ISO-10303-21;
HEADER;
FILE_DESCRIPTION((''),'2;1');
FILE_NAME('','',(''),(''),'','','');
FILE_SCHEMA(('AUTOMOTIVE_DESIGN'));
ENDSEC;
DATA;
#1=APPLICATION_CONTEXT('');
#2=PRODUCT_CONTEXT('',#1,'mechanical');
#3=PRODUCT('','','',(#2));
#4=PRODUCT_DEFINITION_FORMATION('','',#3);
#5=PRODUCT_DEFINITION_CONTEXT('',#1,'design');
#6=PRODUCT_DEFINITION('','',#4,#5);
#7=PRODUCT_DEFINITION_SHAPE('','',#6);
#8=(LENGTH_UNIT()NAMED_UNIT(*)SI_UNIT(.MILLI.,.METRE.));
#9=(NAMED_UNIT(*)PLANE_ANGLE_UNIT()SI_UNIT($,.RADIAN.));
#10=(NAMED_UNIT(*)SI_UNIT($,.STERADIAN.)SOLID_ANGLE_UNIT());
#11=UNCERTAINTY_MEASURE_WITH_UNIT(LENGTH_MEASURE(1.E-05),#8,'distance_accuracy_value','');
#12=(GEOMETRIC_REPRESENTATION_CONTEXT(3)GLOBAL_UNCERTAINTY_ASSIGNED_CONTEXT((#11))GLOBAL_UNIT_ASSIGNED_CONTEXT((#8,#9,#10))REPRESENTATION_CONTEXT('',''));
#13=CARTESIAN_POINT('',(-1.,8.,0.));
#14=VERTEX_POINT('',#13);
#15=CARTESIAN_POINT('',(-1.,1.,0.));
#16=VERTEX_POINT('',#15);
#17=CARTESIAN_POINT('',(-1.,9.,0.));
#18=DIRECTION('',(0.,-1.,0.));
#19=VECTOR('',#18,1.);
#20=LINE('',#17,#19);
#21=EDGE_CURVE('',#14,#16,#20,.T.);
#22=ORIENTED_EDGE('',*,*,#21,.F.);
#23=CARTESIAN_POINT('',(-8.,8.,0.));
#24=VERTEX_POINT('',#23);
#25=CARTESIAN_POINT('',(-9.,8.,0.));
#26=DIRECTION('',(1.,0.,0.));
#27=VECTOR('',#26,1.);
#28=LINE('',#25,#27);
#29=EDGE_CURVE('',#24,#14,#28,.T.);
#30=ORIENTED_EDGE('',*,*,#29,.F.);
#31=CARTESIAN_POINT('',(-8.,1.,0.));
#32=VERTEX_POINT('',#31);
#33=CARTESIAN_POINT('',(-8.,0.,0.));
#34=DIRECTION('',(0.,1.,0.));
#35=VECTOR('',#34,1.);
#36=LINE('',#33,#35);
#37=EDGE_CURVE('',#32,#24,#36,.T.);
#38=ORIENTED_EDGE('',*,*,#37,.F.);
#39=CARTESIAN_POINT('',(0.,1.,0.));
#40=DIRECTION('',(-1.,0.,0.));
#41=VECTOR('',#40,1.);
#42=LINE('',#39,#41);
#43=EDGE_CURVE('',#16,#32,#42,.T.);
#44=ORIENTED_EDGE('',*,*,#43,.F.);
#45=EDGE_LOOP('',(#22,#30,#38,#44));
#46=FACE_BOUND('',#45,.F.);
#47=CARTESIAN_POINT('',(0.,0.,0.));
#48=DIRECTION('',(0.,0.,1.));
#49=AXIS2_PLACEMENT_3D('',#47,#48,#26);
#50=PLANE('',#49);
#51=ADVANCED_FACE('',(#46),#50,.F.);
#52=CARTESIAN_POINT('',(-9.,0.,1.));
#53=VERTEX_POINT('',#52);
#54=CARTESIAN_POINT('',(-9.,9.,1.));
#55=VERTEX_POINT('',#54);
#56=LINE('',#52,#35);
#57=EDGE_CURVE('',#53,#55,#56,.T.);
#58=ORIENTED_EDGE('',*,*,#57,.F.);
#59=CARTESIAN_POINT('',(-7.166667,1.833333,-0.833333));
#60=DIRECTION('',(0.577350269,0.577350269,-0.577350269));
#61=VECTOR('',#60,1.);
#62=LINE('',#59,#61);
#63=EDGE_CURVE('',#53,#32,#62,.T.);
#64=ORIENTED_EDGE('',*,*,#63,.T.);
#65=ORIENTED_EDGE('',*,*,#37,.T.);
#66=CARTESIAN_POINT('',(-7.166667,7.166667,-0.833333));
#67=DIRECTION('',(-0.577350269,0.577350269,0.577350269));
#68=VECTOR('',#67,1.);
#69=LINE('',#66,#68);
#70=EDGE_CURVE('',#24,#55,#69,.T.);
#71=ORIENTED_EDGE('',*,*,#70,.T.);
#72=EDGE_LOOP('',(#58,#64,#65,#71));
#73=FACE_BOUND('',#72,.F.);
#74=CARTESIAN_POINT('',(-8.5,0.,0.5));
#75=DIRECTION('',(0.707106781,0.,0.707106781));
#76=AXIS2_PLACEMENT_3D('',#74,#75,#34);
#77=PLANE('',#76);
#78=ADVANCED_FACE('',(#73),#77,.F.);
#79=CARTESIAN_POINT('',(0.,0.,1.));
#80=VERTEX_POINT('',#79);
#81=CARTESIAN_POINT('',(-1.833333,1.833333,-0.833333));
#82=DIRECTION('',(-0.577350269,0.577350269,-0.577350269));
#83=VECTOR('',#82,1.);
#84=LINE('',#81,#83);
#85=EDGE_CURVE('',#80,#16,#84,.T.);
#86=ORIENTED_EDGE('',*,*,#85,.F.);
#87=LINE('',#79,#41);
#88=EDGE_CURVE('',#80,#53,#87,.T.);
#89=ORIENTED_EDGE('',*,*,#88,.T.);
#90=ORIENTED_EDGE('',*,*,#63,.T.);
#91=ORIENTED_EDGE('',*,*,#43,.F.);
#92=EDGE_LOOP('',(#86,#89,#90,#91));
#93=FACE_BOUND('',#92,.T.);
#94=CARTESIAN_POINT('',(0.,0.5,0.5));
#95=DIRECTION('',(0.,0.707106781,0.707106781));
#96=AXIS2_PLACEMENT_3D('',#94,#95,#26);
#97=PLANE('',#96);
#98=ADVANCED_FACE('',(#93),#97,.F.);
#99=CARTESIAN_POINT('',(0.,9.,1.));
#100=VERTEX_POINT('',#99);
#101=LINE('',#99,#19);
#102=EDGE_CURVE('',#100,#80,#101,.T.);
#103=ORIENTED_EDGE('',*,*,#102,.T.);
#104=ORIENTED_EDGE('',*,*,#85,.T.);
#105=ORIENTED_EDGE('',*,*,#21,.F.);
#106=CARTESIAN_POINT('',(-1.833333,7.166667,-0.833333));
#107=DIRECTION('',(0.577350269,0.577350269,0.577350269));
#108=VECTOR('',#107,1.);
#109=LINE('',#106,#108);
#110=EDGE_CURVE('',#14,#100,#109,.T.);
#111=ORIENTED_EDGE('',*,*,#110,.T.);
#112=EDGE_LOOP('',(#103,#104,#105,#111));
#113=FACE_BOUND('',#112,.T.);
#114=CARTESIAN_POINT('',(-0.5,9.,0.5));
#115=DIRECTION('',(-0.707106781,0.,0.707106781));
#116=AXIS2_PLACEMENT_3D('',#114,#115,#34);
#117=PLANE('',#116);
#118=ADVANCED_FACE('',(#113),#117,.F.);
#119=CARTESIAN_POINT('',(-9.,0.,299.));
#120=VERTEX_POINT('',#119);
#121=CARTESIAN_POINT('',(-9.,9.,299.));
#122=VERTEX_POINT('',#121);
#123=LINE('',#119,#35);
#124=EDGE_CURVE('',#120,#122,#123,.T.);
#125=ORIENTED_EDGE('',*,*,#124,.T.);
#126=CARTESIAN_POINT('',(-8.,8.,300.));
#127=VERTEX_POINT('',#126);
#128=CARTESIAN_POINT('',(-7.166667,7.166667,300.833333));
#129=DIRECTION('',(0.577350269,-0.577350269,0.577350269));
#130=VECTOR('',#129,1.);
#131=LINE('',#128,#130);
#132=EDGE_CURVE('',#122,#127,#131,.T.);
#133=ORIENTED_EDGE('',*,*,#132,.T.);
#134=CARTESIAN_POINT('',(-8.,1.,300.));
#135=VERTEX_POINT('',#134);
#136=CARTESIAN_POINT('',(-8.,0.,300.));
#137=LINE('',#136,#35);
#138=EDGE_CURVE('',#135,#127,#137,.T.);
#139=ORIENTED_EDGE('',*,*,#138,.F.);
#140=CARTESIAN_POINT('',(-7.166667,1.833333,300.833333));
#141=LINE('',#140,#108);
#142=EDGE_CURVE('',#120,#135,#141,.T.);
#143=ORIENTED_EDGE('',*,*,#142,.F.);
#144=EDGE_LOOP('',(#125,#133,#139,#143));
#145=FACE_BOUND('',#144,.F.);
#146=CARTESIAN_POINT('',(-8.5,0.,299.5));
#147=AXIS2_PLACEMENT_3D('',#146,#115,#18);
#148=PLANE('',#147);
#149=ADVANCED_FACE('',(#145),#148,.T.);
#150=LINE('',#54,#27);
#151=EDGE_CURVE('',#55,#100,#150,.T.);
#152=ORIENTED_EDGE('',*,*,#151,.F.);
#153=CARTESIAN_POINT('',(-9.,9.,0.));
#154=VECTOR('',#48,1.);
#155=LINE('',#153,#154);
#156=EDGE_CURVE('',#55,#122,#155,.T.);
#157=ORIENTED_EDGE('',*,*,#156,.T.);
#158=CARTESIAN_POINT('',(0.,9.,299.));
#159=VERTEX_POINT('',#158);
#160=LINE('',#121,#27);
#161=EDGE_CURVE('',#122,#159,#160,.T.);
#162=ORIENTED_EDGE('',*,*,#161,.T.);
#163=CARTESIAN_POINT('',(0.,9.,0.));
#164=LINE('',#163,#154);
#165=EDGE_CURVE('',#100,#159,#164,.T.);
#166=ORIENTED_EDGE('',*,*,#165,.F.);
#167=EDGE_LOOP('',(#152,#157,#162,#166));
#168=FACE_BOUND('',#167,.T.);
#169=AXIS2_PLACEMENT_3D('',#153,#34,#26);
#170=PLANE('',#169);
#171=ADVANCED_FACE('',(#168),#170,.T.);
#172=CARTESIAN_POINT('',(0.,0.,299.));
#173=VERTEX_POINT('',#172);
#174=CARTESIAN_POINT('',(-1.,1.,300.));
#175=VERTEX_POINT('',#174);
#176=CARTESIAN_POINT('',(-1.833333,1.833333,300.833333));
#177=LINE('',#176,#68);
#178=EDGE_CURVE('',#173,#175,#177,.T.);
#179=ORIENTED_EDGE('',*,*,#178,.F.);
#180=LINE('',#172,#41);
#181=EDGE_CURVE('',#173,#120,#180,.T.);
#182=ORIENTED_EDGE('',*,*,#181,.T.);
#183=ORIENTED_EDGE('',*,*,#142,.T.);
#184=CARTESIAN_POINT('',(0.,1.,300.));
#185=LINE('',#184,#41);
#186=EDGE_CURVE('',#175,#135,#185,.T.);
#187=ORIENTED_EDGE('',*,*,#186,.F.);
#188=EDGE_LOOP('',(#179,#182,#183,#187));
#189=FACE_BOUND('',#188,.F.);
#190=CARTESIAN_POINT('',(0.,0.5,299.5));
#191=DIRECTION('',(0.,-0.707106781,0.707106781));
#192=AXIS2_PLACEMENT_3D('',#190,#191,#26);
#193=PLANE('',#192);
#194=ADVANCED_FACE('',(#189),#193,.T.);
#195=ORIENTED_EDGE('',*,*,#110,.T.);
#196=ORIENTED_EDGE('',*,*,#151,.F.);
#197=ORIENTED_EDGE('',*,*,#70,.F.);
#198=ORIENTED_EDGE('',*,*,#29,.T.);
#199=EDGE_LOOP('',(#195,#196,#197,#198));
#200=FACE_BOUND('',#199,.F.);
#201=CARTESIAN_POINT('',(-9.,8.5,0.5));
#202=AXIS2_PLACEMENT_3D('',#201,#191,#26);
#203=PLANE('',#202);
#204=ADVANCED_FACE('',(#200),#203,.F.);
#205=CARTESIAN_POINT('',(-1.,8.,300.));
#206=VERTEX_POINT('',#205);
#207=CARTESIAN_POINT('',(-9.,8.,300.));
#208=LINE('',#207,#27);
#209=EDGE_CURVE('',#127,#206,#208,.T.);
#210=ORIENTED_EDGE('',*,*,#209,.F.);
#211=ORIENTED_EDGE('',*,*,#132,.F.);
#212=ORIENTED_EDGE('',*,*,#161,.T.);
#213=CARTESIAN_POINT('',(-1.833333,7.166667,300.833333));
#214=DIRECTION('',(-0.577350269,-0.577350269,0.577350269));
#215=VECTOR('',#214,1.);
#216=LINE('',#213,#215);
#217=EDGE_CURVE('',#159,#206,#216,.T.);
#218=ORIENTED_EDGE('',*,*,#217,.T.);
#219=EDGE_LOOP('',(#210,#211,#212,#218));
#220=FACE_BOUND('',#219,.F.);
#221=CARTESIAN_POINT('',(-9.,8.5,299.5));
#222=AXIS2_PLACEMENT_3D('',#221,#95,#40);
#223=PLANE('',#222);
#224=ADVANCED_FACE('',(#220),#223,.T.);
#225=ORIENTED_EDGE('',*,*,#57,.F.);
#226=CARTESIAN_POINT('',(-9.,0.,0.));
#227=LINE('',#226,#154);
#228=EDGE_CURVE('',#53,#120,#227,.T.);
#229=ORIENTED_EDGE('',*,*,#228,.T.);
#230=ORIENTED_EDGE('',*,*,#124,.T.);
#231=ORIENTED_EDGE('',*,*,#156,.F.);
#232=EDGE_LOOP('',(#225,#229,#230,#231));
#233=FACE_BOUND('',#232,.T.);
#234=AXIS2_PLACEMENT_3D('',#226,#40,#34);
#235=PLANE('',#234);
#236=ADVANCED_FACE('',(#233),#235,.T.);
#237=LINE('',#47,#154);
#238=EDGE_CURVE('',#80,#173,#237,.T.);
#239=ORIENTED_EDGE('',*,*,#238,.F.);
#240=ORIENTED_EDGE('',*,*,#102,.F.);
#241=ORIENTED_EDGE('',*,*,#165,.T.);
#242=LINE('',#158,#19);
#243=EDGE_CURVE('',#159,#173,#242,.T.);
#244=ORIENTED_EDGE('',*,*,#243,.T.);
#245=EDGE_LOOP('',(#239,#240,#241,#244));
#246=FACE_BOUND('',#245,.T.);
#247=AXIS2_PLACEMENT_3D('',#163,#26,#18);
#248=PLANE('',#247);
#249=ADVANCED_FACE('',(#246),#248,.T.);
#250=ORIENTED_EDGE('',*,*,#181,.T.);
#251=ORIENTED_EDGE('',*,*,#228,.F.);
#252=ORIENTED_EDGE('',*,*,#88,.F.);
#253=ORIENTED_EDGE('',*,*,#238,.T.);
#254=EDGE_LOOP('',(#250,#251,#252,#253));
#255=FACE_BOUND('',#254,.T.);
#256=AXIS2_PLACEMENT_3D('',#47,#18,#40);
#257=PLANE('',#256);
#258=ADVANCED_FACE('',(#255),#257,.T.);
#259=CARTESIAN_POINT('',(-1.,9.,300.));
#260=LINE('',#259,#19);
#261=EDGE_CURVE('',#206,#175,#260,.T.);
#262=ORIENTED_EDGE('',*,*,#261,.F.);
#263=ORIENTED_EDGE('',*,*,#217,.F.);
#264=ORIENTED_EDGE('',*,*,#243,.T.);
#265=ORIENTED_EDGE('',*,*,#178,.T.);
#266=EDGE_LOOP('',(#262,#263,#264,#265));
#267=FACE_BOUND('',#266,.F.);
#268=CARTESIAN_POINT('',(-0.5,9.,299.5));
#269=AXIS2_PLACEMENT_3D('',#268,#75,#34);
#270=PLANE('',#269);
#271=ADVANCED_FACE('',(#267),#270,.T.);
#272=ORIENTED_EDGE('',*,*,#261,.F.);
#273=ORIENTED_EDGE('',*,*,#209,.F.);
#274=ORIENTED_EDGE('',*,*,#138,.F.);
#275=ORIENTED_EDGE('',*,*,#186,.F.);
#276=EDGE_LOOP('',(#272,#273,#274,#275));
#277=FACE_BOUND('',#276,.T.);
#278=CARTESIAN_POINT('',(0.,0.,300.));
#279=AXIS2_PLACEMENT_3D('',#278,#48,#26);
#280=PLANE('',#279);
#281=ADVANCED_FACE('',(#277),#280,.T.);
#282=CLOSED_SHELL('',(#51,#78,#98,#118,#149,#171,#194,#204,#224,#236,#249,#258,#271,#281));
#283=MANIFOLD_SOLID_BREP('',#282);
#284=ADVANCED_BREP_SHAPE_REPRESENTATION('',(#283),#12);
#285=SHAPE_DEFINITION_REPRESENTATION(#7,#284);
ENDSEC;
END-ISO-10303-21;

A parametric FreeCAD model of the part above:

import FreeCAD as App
import Part
import Sketcher

V = App.Vector
Q = App.Units.Quantity


def edges_at(feature, points):
    """Names of the edges that pass closest to the given points."""
    edges = feature.Shape.Edges
    near = lambda p: min(range(len(edges)), key=lambda i: edges[i].distToShape(Part.Vertex(*p))[0])
    return sorted({f"Edge{near(p) + 1}" for p in points})

doc = App.newDocument("Part")
body = doc.addObject("PartDesign::Body", "Body")

# Sketch on XY plane
sketch1 = doc.addObject("Sketcher::SketchObject", "Sketch")
body.addObject(sketch1)
sketch1.AttachmentSupport = (doc.XY_Plane, [""])
sketch1.MapMode = "FlatFace"
sketch1.addGeometry([
    Part.LineSegment(V(-9, 0, 0), V(0, 0, 0)),
    Part.LineSegment(V(0, 0, 0), V(0, 9, 0)),
    Part.LineSegment(V(0, 9, 0), V(-9, 9, 0)),
    Part.LineSegment(V(-9, 9, 0), V(-9, 0, 0)),
], False)
sketch1.addConstraint([
    Sketcher.Constraint("Coincident", 0, 2, 1, 1),
    Sketcher.Constraint("Coincident", 1, 2, 2, 1),
    Sketcher.Constraint("Coincident", 2, 2, 3, 1),
    Sketcher.Constraint("Coincident", 3, 2, 0, 1),
    Sketcher.Constraint("Horizontal", 0),
    Sketcher.Constraint("Vertical", 1),
    Sketcher.Constraint("Horizontal", 2),
    Sketcher.Constraint("Vertical", 3),
    Sketcher.Constraint("Coincident", 0, 2, -1, 1),
    Sketcher.Constraint("Equal", 2, 1),
    Sketcher.Constraint("DistanceX", 0, 1, 0, 2, Q("9 mm")),
])
pad1 = doc.addObject("PartDesign::Pad", "Pad")
body.addObject(pad1)
pad1.Profile = sketch1
pad1.Length = 300
doc.recompute()

chamfer = doc.addObject("PartDesign::Chamfer", "Chamfer")
body.addObject(chamfer)
chamfer.Base = (pad1, edges_at(pad1, [
    (-4.5, 9, 300),
    (0, 4.5, 300),
    (-4.5, 0, 300),
    (-9, 4.5, 300),
]))
chamfer.Size = 1
doc.recompute()

chamfer2 = doc.addObject("PartDesign::Chamfer", "Chamfer001")
body.addObject(chamfer2)
chamfer2.Base = (chamfer, edges_at(chamfer, [
    (-4.5, 9, 0),
    (0, 4.5, 0),
    (-4.5, 0, 0),
    (-9, 4.5, 0),
]))
chamfer2.Size = 1

doc.recompute()
